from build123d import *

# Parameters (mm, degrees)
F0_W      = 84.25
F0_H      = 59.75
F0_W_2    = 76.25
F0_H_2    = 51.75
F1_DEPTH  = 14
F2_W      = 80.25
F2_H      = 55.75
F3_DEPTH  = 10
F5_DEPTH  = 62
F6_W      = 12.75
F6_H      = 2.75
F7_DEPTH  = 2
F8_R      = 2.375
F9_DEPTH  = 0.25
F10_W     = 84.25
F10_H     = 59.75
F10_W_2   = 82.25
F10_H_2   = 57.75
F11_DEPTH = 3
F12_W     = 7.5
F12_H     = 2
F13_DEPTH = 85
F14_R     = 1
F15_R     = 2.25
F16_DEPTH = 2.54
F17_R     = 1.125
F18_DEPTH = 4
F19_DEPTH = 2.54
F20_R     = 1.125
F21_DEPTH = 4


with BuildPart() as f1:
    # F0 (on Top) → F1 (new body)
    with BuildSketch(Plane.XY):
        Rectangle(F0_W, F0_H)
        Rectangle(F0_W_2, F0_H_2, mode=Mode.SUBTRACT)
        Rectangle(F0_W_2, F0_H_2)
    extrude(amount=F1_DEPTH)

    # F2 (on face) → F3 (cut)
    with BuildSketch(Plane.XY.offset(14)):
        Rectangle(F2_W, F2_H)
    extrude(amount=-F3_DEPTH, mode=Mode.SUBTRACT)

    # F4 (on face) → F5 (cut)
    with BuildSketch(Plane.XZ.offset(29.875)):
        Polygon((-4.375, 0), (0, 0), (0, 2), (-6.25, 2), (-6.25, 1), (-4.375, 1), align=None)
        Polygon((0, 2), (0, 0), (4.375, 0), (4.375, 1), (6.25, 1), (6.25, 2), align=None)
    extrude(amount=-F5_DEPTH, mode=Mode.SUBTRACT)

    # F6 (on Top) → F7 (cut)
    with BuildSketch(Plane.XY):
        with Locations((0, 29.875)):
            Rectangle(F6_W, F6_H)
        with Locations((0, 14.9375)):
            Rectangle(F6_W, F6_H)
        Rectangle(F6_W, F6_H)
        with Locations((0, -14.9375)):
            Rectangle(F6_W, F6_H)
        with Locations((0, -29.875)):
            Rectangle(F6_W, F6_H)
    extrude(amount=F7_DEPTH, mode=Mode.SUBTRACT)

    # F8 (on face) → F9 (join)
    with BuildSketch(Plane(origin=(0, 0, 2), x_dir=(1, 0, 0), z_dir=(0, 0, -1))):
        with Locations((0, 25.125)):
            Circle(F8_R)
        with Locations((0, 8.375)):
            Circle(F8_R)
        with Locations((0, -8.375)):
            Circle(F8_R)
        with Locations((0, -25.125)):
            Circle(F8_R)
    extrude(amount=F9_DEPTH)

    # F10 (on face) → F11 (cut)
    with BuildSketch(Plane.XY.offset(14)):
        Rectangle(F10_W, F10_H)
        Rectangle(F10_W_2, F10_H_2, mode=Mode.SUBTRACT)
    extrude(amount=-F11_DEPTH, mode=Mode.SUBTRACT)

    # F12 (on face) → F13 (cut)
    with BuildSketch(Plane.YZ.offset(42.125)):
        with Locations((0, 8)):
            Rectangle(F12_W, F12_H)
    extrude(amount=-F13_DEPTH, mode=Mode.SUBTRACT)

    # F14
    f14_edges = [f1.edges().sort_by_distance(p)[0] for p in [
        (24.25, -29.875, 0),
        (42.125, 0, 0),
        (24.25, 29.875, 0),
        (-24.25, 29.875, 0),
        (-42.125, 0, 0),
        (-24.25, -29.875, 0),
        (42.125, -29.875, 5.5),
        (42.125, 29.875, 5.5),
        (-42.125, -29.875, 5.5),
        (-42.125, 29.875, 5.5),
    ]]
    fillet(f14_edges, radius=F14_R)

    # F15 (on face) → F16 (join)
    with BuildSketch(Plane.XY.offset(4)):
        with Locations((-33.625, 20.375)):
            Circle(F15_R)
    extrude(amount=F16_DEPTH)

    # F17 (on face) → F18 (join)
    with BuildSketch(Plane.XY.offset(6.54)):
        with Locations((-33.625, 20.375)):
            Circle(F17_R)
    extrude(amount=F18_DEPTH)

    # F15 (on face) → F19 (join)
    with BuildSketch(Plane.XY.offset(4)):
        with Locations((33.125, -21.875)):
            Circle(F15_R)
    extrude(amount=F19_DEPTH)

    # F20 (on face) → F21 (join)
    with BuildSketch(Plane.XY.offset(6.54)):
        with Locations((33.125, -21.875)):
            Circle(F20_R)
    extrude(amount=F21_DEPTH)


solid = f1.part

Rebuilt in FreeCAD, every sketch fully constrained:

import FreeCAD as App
import Part
import Sketcher
from FreeCAD import Vector


def edges_at(feature, points):
    """Names of the edges that pass closest to the given points."""
    edges = feature.Shape.Edges
    near = lambda p: min(range(len(edges)), key=lambda i: edges[i].distToShape(Part.Vertex(*p))[0])
    return sorted({f"Edge{near(p) + 1}" for p in points})


def add_polygon(sketch, points):
    """Adds a closed chain of lines whose ends are joined by coincident constraints."""
    first, n = sketch.GeometryCount, len(points)
    for a, b in zip(points, points[1:] + points[:1]):
        sketch.addGeometry(Part.LineSegment(App.Vector(*a, 0), App.Vector(*b, 0)), False)
    for i in range(n):
        sketch.addConstraint(Sketcher.Constraint("Coincident", first + i, 2, first + (i + 1) % n, 1))

doc = App.newDocument("Part")
body = doc.addObject("PartDesign::Body", "Body")

sketch1 = doc.addObject("Sketcher::SketchObject", "Sketch")
body.addObject(sketch1)
sketch1.AttachmentSupport = (doc.XY_Plane, [""])
sketch1.MapMode = "FlatFace"
add_polygon(sketch1, [(-42.125, 29.875), (-42.125, -29.875), (42.125, -29.875), (42.125, 29.875)])
sketch1.addConstraint([
    Sketcher.Constraint("Vertical", 0),
    Sketcher.Constraint("Horizontal", 1),
    Sketcher.Constraint("Vertical", 2),
    Sketcher.Constraint("Horizontal", 3),
    Sketcher.Constraint("Symmetric", 0, 2, 2, 2, -1, 1),
    Sketcher.Constraint("DistanceX", 1, 1, 1, 2, 84.25),
    Sketcher.Constraint("DistanceY", 0, 2, 0, 1, 59.75),
])
pad1 = doc.addObject("PartDesign::Pad", "Pad")
body.addObject(pad1)
pad1.Profile = sketch1
pad1.Length = 14

sketch2 = doc.addObject("Sketcher::SketchObject", "Sketch001")
body.addObject(sketch2)
sketch2.AttachmentSupport = (doc.XY_Plane, [""])
sketch2.MapMode = "FlatFace"
sketch2.AttachmentOffset = App.Placement(Vector(0, 0, 14), App.Rotation())
add_polygon(sketch2, [(-40.125, 27.875), (-40.125, -27.875), (40.125, -27.875), (40.125, 27.875)])
sketch2.addConstraint([
    Sketcher.Constraint("Vertical", 0),
    Sketcher.Constraint("Horizontal", 1),
    Sketcher.Constraint("Vertical", 2),
    Sketcher.Constraint("Horizontal", 3),
    Sketcher.Constraint("Symmetric", 0, 2, 2, 2, -1, 1),
    Sketcher.Constraint("DistanceX", 1, 1, 1, 2, 80.25),
    Sketcher.Constraint("DistanceY", 0, 2, 0, 1, 55.75),
])
pocket1 = doc.addObject("PartDesign::Pocket", "Pocket")
body.addObject(pocket1)
pocket1.Profile = sketch2
pocket1.Length = 10

sketch3 = doc.addObject("Sketcher::SketchObject", "Sketch002")
body.addObject(sketch3)
sketch3.AttachmentSupport = (doc.XZ_Plane, [""])
sketch3.MapMode = "FlatFace"
sketch3.AttachmentOffset = App.Placement(Vector(0, 0, 29.875), App.Rotation())
add_polygon(sketch3, [(-4.375, 0), (4.375, 0), (4.375, 1), (6.25, 1), (6.25, 2), (-6.25, 2), (-6.25, 1), (-4.375, 1)])
sketch3.addConstraint([
    Sketcher.Constraint("Horizontal", 0),
    Sketcher.Constraint("Vertical", 1),
    Sketcher.Constraint("Horizontal", 2),
    Sketcher.Constraint("Vertical", 3),
    Sketcher.Constraint("Horizontal", 4),
    Sketcher.Constraint("Vertical", 5),
    Sketcher.Constraint("Horizontal", 6),
    Sketcher.Constraint("Vertical", 7),
    Sketcher.Constraint("Symmetric", 0, 2, 7, 2, -1, 1),
    Sketcher.Constraint("Symmetric", 2, 2, 5, 2, -2),
    Sketcher.Constraint("Equal", 1, 3),
    Sketcher.Constraint("DistanceY", 1, 1, 1, 2, 1.0),
    Sketcher.Constraint("DistanceX", 4, 2, 4, 1, 12.5),
    Sketcher.Constraint("DistanceX", 0, 1, 0, 2, 8.75),
])
pocket2 = doc.addObject("PartDesign::Pocket", "Pocket001")
body.addObject(pocket2)
pocket2.Profile = sketch3
pocket2.Length = 62

sketch4 = doc.addObject("Sketcher::SketchObject", "Sketch003")
body.addObject(sketch4)
sketch4.AttachmentSupport = (doc.XY_Plane, [""])
sketch4.MapMode = "FlatFace"
add_polygon(sketch4, [(-6.375, 31.25), (-6.375, 28.5), (6.375, 28.5), (6.375, 31.25)])
add_polygon(sketch4, [(-6.375, 16.3125), (-6.375, 13.5625), (6.375, 13.5625), (6.375, 16.3125)])
add_polygon(sketch4, [(-6.375, 1.375), (-6.375, -1.375), (6.375, -1.375), (6.375, 1.375)])
add_polygon(sketch4, [(-6.375, -13.5625), (-6.375, -16.3125), (6.375, -16.3125), (6.375, -13.5625)])
add_polygon(sketch4, [(-6.375, -28.5), (-6.375, -31.25), (6.375, -31.25), (6.375, -28.5)])
sketch4.addConstraint([
    Sketcher.Constraint("Vertical", 0),
    Sketcher.Constraint("Horizontal", 1),
    Sketcher.Constraint("Vertical", 2),
    Sketcher.Constraint("Horizontal", 3),
    Sketcher.Constraint("Vertical", 4),
    Sketcher.Constraint("Horizontal", 5),
    Sketcher.Constraint("Vertical", 6),
    Sketcher.Constraint("Horizontal", 7),
    Sketcher.Constraint("Vertical", 8),
    Sketcher.Constraint("Horizontal", 9),
    Sketcher.Constraint("Vertical", 10),
    Sketcher.Constraint("Horizontal", 11),
    Sketcher.Constraint("Vertical", 12),
    Sketcher.Constraint("Horizontal", 13),
    Sketcher.Constraint("Vertical", 14),
    Sketcher.Constraint("Horizontal", 15),
    Sketcher.Constraint("Vertical", 16),
    Sketcher.Constraint("Horizontal", 17),
    Sketcher.Constraint("Vertical", 18),
    Sketcher.Constraint("Horizontal", 19),
    Sketcher.Constraint("Symmetric", 8, 2, 10, 2, -1, 1),
    Sketcher.Constraint("Symmetric", 6, 2, 12, 2, -1, 1),
    Sketcher.Constraint("Symmetric", 4, 2, 14, 2, -1, 1),
    Sketcher.Constraint("Symmetric", 2, 2, 16, 2, -1, 1),
    Sketcher.Constraint("Symmetric", 0, 2, 18, 2, -1, 1),
    Sketcher.Constraint("Vertical", 3, 2, 4, 2),
    Sketcher.Constraint("Vertical", 2, 2, 5, 2),
    Sketcher.Constraint("Vertical", 7, 2, 8, 2),
    Sketcher.Constraint("Vertical", 6, 2, 9, 2),
    Sketcher.Constraint("Equal", 2, 4),
    Sketcher.Constraint("Equal", 6, 8),
    Sketcher.Constraint("DistanceX", 1, 1, 1, 2, 12.75),
    Sketcher.Constraint("DistanceY", 0, 2, 0, 1, 2.75),
    Sketcher.Constraint("DistanceY", -1, 1, 0, 2, 28.5),
    Sketcher.Constraint("DistanceY", 12, 2, 4, 2, 29.875),
])
pocket3 = doc.addObject("PartDesign::Pocket", "Pocket002")
body.addObject(pocket3)
pocket3.Profile = sketch4
pocket3.Length = 2
pocket3.Reversed = True

sketch5 = doc.addObject("Sketcher::SketchObject", "Sketch004")
body.addObject(sketch5)
sketch5.AttachmentSupport = (doc.XY_Plane, [""])
sketch5.MapMode = "FlatFace"
sketch5.AttachmentOffset = App.Placement(Vector(0, 0, 2), App.Rotation())
sketch5.addGeometry([
    Part.Circle(Vector(0, -25.125, 0), Vector(0, 0, 1), 2.375),
    Part.Circle(Vector(0, -8.375, 0), Vector(0, 0, 1), 2.375),
    Part.Circle(Vector(0, 8.375, 0), Vector(0, 0, 1), 2.375),
    Part.Circle(Vector(0, 25.125, 0), Vector(0, 0, 1), 2.375),
], False)
sketch5.addConstraint([
    Sketcher.Constraint("Equal", 0, 1),
    Sketcher.Constraint("Equal", 1, 2),
    Sketcher.Constraint("Equal", 2, 3),
    Sketcher.Constraint("Symmetric", 1, 3, 2, 3, -1, 1),
    Sketcher.Constraint("Symmetric", 0, 3, 3, 3, -1, 1),
    Sketcher.Constraint("PointOnObject", 0, 3, -2),
    Sketcher.Constraint("PointOnObject", 1, 3, -2),
    Sketcher.Constraint("Diameter", 0, 4.75),
    Sketcher.Constraint("DistanceY", 0, 3, 2, 3, 33.5),
    Sketcher.Constraint("DistanceY", 0, 3, 1, 3, 16.75),
])
pad2 = doc.addObject("PartDesign::Pad", "Pad001")
body.addObject(pad2)
pad2.Profile = sketch5
pad2.Length = 0.25
pad2.Reversed = True

sketch6 = doc.addObject("Sketcher::SketchObject", "Sketch005")
body.addObject(sketch6)
sketch6.AttachmentSupport = (doc.XY_Plane, [""])
sketch6.MapMode = "FlatFace"
sketch6.AttachmentOffset = App.Placement(Vector(0, 0, 14), App.Rotation())
add_polygon(sketch6, [(-42.125, 29.875), (-42.125, -29.875), (42.125, -29.875), (42.125, 29.875)])
add_polygon(sketch6, [(41.125, -28.875), (-41.125, -28.875), (-41.125, 28.875), (41.125, 28.875)])
sketch6.addConstraint([
    Sketcher.Constraint("Vertical", 0),
    Sketcher.Constraint("Horizontal", 1),
    Sketcher.Constraint("Vertical", 2),
    Sketcher.Constraint("Horizontal", 3),
    Sketcher.Constraint("Horizontal", 4),
    Sketcher.Constraint("Vertical", 5),
    Sketcher.Constraint("Horizontal", 6),
    Sketcher.Constraint("Vertical", 7),
    Sketcher.Constraint("Symmetric", 0, 2, 2, 2, -1, 1),
    Sketcher.Constraint("Symmetric", 4, 2, 6, 2, -1, 1),
    Sketcher.Constraint("DistanceX", 0, 2, 4, 2, 1.0),
    Sketcher.Constraint("DistanceY", 0, 2, 4, 2, 1.0),
    Sketcher.Constraint("DistanceX", 1, 1, 1, 2, 84.25),
    Sketcher.Constraint("DistanceY", 0, 2, 0, 1, 59.75),
])
pocket4 = doc.addObject("PartDesign::Pocket", "Pocket003")
body.addObject(pocket4)
pocket4.Profile = sketch6
pocket4.Length = 3

sketch7 = doc.addObject("Sketcher::SketchObject", "Sketch006")
body.addObject(sketch7)
sketch7.AttachmentSupport = (doc.YZ_Plane, [""])
sketch7.MapMode = "FlatFace"
sketch7.AttachmentOffset = App.Placement(Vector(0, 0, 42.125), App.Rotation())
add_polygon(sketch7, [(-3.75, 9), (-3.75, 7), (3.75, 7), (3.75, 9)])
sketch7.addConstraint([
    Sketcher.Constraint("Vertical", 0),
    Sketcher.Constraint("Horizontal", 1),
    Sketcher.Constraint("Vertical", 2),
    Sketcher.Constraint("Horizontal", 3),
    Sketcher.Constraint("DistanceY", 0, 2, 0, 1, 2.0),
    Sketcher.Constraint("DistanceX", 1, 1, 1, 2, 7.5),
    Sketcher.Constraint("DistanceY", -1, 1, 0, 2, 7.0),
    Sketcher.Constraint("DistanceX", 0, 2, -1, 1, 3.75),
])
pocket5 = doc.addObject("PartDesign::Pocket", "Pocket004")
body.addObject(pocket5)
pocket5.Profile = sketch7
pocket5.Length = 85
doc.recompute()

fillet = doc.addObject("PartDesign::Fillet", "Fillet")
body.addObject(fillet)
fillet.Base = (pocket5, edges_at(pocket5, [
    (24.25, -29.875, 0),
    (42.125, 0, 0),
    (24.25, 29.875, 0),
    (-24.25, 29.875, 0),
    (-42.125, 0, 0),
    (-24.25, -29.875, 0),
    (42.125, -29.875, 5.5),
    (42.125, 29.875, 5.5),
    (-42.125, -29.875, 5.5),
    (-42.125, 29.875, 5.5),
]))
fillet.Radius = 1

sketch8 = doc.addObject("Sketcher::SketchObject", "Sketch007")
body.addObject(sketch8)
sketch8.AttachmentSupport = (doc.XY_Plane, [""])
sketch8.MapMode = "FlatFace"
sketch8.AttachmentOffset = App.Placement(Vector(0, 0, 4), App.Rotation())
sketch8.addGeometry(Part.Circle(Vector(-33.625, 20.375, 0), Vector(0, 0, 1), 2.25), False)
sketch8.addConstraint([
    Sketcher.Constraint("Diameter", 0, 4.5),
    Sketcher.Constraint("DistanceX", 0, 3, -1, 1, 33.625),
    Sketcher.Constraint("DistanceY", -1, 1, 0, 3, 20.375),
])
pad3 = doc.addObject("PartDesign::Pad", "Pad002")
body.addObject(pad3)
pad3.Profile = sketch8
pad3.Length = 2.54

sketch9 = doc.addObject("Sketcher::SketchObject", "Sketch008")
body.addObject(sketch9)
sketch9.AttachmentSupport = (doc.XY_Plane, [""])
sketch9.MapMode = "FlatFace"
sketch9.AttachmentOffset = App.Placement(Vector(0, 0, 6.54), App.Rotation())
sketch9.addGeometry(Part.Circle(Vector(-33.625, 20.375, 0), Vector(0, 0, 1), 1.125), False)
sketch9.addConstraint([
    Sketcher.Constraint("Diameter", 0, 2.25),
    Sketcher.Constraint("DistanceX", 0, 3, -1, 1, 33.625),
    Sketcher.Constraint("DistanceY", -1, 1, 0, 3, 20.375),
])
pad4 = doc.addObject("PartDesign::Pad", "Pad003")
body.addObject(pad4)
pad4.Profile = sketch9
pad4.Length = 4

sketch10 = doc.addObject("Sketcher::SketchObject", "Sketch009")
body.addObject(sketch10)
sketch10.AttachmentSupport = (doc.XY_Plane, [""])
sketch10.MapMode = "FlatFace"
sketch10.AttachmentOffset = App.Placement(Vector(0, 0, 4), App.Rotation())
sketch10.addGeometry(Part.Circle(Vector(33.125, -21.875, 0), Vector(0, 0, 1), 2.25), False)
sketch10.addConstraint([
    Sketcher.Constraint("Diameter", 0, 4.5),
    Sketcher.Constraint("DistanceX", -1, 1, 0, 3, 33.125),
    Sketcher.Constraint("DistanceY", 0, 3, -1, 1, 21.875),
])
pad5 = doc.addObject("PartDesign::Pad", "Pad004")
body.addObject(pad5)
pad5.Profile = sketch10
pad5.Length = 2.54

sketch11 = doc.addObject("Sketcher::SketchObject", "Sketch010")
body.addObject(sketch11)
sketch11.AttachmentSupport = (doc.XY_Plane, [""])
sketch11.MapMode = "FlatFace"
sketch11.AttachmentOffset = App.Placement(Vector(0, 0, 6.54), App.Rotation())
sketch11.addGeometry(Part.Circle(Vector(33.125, -21.875, 0), Vector(0, 0, 1), 1.125), False)
sketch11.addConstraint([
    Sketcher.Constraint("Diameter", 0, 2.25),
    Sketcher.Constraint("DistanceX", -1, 1, 0, 3, 33.125),
    Sketcher.Constraint("DistanceY", 0, 3, -1, 1, 21.875),
])
pad6 = doc.addObject("PartDesign::Pad", "Pad005")
body.addObject(pad6)
pad6.Profile = sketch11
pad6.Length = 4

doc.recompute()
